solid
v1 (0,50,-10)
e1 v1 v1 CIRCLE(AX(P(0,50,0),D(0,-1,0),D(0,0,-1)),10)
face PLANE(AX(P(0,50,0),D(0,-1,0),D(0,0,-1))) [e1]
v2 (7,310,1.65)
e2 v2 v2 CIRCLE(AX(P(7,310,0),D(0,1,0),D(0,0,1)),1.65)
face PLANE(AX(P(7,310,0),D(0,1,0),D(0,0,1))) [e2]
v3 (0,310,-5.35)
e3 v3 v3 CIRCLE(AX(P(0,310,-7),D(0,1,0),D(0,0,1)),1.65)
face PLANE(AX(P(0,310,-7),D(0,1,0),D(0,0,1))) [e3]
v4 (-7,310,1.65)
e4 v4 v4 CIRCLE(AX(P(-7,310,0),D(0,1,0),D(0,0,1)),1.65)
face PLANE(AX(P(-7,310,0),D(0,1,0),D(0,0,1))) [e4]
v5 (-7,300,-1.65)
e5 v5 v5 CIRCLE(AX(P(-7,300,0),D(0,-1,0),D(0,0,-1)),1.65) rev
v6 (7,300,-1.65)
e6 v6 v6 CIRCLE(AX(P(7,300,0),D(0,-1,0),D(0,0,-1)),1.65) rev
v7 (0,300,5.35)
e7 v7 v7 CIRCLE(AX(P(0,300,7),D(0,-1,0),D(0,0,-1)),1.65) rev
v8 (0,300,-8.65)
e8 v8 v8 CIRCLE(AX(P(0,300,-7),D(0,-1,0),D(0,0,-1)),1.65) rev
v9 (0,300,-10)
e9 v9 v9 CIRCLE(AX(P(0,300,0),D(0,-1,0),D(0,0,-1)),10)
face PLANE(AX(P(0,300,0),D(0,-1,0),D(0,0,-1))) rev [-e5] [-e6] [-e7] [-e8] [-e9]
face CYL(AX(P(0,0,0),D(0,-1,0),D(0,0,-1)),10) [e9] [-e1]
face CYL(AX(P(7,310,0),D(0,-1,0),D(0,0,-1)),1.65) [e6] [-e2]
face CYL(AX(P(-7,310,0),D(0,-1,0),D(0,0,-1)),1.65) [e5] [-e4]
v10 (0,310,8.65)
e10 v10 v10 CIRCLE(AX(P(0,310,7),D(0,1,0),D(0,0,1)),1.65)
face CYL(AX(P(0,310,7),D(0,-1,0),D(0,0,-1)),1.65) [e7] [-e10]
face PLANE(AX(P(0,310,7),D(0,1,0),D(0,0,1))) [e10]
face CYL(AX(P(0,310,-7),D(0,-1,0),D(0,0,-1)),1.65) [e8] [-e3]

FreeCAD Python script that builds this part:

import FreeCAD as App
import Part
import Sketcher
from FreeCAD import Vector


def add_polygon(sketch, points):
    """Adds a closed chain of lines whose ends are joined by coincident constraints."""
    first, n = sketch.GeometryCount, len(points)
    for a, b in zip(points, points[1:] + points[:1]):
        sketch.addGeometry(Part.LineSegment(App.Vector(*a, 0), App.Vector(*b, 0)), False)
    for i in range(n):
        sketch.addConstraint(Sketcher.Constraint("Coincident", first + i, 2, first + (i + 1) % n, 1))

doc = App.newDocument("Part")
params = doc.addObject("Spreadsheet::Sheet", "Params")
for row, (alias, value) in enumerate([
    ("sketch1_width", "10 mm"),
    ("sketch1_height", "300 mm"),
    ("revolution_angle", "360 deg"),
    ("sketch2_diameter", "3.3 mm"),
    ("pad1_length", "10 mm"),
    ("sketch3_diameter", "20 mm"),
    ("pocket1_length", "50 mm"),
], start=1):
    params.set(f"A{row}", alias)
    params.set(f"B{row}", "=" + value)
    params.setAlias(f"B{row}", alias)

body = doc.addObject("PartDesign::Body", "Body")

sketch1 = doc.addObject("Sketcher::SketchObject", "Sketch")
body.addObject(sketch1)
sketch1.AttachmentSupport = (doc.XY_Plane, [""])
sketch1.MapMode = "FlatFace"
add_polygon(sketch1, [(0, 300), (0, 0), (10, 0), (10, 300)])
sketch1.addConstraint(Sketcher.Constraint("Vertical", 0))
sketch1.addConstraint(Sketcher.Constraint("Horizontal", 1))
sketch1.addConstraint(Sketcher.Constraint("Vertical", 2))
sketch1.addConstraint(Sketcher.Constraint("Horizontal", 3))
sketch1.addConstraint(Sketcher.Constraint("Coincident", 0, 2, -1, 1))
sketch1.addConstraint(Sketcher.Constraint("DistanceX", 1, 1, 1, 2, 10.0))
sketch1.addConstraint(Sketcher.Constraint("DistanceY", 0, 2, 0, 1, 300.0))
sketch1.setExpression("Constraints[9]", "Params.sketch1_width")
sketch1.setExpression("Constraints[10]", "Params.sketch1_height")
revolution = doc.addObject("PartDesign::Revolution", "Revolution")
body.addObject(revolution)
revolution.Profile = sketch1
revolution.ReferenceAxis = (sketch1, ["V_Axis"])
revolution.setExpression("Angle", "Params.revolution_angle")

sketch2 = doc.addObject("Sketcher::SketchObject", "Sketch001")
body.addObject(sketch2)
sketch2.AttachmentSupport = (doc.XZ_Plane, [""])
sketch2.MapMode = "FlatFace"
sketch2.AttachmentOffset = App.Placement(Vector(0, 0, -300), App.Rotation())
sketch2.addGeometry(Part.Circle(Vector(7, 0, 0), Vector(0, 0, 1), 1.6), False)
sketch2.addGeometry(Part.Circle(Vector(0, 7, 0), Vector(0, 0, 1), 1.6), False)
sketch2.addGeometry(Part.Circle(Vector(-7, 0, 0), Vector(0, 0, 1), 1.6), False)
sketch2.addGeometry(Part.Circle(Vector(0, -7, 0), Vector(0, 0, 1), 1.6), False)
sketch2.addConstraint(Sketcher.Constraint("Equal", 0, 1))
sketch2.addConstraint(Sketcher.Constraint("Equal", 1, 2))
sketch2.addConstraint(Sketcher.Constraint("Equal", 2, 3))
sketch2.addConstraint(Sketcher.Constraint("Symmetric", 0, 3, 2, 3, -1, 1))
sketch2.addConstraint(Sketcher.Constraint("Symmetric", 1, 3, 3, 3, -1, 1))
sketch2.addConstraint(Sketcher.Constraint("PointOnObject", 0, 3, -1))
sketch2.addConstraint(Sketcher.Constraint("PointOnObject", 1, 3, -2))
sketch2.addConstraint(Sketcher.Constraint("Diameter", 0, 3.3))
sketch2.addConstraint(Sketcher.Constraint("DistanceX", -1, 1, 0, 3, 7.0))
sketch2.addConstraint(Sketcher.Constraint("DistanceY", -1, 1, 1, 3, 7.0))
sketch2.setExpression("Constraints[7]", "Params.sketch2_diameter")
pad1 = doc.addObject("PartDesign::Pad", "Pad")
body.addObject(pad1)
pad1.Profile = sketch2
pad1.setExpression("Length", "Params.pad1_length")
pad1.Reversed = True

sketch3 = doc.addObject("Sketcher::SketchObject", "Sketch002")
body.addObject(sketch3)
sketch3.AttachmentSupport = (doc.XZ_Plane, [""])
sketch3.MapMode = "FlatFace"
sketch3.addGeometry(Part.Circle(Vector(0, 0, 0), Vector(0, 0, 1), 10), False)
sketch3.addConstraint(Sketcher.Constraint("Coincident", 0, 3, -1, 1))
sketch3.addConstraint(Sketcher.Constraint("Diameter", 0, 20.0))
sketch3.setExpression("Constraints[1]", "Params.sketch3_diameter")
pocket1 = doc.addObject("PartDesign::Pocket", "Pocket")
body.addObject(pocket1)
pocket1.Profile = sketch3
pocket1.setExpression("Length", "Params.pocket1_length")

doc.recompute()
